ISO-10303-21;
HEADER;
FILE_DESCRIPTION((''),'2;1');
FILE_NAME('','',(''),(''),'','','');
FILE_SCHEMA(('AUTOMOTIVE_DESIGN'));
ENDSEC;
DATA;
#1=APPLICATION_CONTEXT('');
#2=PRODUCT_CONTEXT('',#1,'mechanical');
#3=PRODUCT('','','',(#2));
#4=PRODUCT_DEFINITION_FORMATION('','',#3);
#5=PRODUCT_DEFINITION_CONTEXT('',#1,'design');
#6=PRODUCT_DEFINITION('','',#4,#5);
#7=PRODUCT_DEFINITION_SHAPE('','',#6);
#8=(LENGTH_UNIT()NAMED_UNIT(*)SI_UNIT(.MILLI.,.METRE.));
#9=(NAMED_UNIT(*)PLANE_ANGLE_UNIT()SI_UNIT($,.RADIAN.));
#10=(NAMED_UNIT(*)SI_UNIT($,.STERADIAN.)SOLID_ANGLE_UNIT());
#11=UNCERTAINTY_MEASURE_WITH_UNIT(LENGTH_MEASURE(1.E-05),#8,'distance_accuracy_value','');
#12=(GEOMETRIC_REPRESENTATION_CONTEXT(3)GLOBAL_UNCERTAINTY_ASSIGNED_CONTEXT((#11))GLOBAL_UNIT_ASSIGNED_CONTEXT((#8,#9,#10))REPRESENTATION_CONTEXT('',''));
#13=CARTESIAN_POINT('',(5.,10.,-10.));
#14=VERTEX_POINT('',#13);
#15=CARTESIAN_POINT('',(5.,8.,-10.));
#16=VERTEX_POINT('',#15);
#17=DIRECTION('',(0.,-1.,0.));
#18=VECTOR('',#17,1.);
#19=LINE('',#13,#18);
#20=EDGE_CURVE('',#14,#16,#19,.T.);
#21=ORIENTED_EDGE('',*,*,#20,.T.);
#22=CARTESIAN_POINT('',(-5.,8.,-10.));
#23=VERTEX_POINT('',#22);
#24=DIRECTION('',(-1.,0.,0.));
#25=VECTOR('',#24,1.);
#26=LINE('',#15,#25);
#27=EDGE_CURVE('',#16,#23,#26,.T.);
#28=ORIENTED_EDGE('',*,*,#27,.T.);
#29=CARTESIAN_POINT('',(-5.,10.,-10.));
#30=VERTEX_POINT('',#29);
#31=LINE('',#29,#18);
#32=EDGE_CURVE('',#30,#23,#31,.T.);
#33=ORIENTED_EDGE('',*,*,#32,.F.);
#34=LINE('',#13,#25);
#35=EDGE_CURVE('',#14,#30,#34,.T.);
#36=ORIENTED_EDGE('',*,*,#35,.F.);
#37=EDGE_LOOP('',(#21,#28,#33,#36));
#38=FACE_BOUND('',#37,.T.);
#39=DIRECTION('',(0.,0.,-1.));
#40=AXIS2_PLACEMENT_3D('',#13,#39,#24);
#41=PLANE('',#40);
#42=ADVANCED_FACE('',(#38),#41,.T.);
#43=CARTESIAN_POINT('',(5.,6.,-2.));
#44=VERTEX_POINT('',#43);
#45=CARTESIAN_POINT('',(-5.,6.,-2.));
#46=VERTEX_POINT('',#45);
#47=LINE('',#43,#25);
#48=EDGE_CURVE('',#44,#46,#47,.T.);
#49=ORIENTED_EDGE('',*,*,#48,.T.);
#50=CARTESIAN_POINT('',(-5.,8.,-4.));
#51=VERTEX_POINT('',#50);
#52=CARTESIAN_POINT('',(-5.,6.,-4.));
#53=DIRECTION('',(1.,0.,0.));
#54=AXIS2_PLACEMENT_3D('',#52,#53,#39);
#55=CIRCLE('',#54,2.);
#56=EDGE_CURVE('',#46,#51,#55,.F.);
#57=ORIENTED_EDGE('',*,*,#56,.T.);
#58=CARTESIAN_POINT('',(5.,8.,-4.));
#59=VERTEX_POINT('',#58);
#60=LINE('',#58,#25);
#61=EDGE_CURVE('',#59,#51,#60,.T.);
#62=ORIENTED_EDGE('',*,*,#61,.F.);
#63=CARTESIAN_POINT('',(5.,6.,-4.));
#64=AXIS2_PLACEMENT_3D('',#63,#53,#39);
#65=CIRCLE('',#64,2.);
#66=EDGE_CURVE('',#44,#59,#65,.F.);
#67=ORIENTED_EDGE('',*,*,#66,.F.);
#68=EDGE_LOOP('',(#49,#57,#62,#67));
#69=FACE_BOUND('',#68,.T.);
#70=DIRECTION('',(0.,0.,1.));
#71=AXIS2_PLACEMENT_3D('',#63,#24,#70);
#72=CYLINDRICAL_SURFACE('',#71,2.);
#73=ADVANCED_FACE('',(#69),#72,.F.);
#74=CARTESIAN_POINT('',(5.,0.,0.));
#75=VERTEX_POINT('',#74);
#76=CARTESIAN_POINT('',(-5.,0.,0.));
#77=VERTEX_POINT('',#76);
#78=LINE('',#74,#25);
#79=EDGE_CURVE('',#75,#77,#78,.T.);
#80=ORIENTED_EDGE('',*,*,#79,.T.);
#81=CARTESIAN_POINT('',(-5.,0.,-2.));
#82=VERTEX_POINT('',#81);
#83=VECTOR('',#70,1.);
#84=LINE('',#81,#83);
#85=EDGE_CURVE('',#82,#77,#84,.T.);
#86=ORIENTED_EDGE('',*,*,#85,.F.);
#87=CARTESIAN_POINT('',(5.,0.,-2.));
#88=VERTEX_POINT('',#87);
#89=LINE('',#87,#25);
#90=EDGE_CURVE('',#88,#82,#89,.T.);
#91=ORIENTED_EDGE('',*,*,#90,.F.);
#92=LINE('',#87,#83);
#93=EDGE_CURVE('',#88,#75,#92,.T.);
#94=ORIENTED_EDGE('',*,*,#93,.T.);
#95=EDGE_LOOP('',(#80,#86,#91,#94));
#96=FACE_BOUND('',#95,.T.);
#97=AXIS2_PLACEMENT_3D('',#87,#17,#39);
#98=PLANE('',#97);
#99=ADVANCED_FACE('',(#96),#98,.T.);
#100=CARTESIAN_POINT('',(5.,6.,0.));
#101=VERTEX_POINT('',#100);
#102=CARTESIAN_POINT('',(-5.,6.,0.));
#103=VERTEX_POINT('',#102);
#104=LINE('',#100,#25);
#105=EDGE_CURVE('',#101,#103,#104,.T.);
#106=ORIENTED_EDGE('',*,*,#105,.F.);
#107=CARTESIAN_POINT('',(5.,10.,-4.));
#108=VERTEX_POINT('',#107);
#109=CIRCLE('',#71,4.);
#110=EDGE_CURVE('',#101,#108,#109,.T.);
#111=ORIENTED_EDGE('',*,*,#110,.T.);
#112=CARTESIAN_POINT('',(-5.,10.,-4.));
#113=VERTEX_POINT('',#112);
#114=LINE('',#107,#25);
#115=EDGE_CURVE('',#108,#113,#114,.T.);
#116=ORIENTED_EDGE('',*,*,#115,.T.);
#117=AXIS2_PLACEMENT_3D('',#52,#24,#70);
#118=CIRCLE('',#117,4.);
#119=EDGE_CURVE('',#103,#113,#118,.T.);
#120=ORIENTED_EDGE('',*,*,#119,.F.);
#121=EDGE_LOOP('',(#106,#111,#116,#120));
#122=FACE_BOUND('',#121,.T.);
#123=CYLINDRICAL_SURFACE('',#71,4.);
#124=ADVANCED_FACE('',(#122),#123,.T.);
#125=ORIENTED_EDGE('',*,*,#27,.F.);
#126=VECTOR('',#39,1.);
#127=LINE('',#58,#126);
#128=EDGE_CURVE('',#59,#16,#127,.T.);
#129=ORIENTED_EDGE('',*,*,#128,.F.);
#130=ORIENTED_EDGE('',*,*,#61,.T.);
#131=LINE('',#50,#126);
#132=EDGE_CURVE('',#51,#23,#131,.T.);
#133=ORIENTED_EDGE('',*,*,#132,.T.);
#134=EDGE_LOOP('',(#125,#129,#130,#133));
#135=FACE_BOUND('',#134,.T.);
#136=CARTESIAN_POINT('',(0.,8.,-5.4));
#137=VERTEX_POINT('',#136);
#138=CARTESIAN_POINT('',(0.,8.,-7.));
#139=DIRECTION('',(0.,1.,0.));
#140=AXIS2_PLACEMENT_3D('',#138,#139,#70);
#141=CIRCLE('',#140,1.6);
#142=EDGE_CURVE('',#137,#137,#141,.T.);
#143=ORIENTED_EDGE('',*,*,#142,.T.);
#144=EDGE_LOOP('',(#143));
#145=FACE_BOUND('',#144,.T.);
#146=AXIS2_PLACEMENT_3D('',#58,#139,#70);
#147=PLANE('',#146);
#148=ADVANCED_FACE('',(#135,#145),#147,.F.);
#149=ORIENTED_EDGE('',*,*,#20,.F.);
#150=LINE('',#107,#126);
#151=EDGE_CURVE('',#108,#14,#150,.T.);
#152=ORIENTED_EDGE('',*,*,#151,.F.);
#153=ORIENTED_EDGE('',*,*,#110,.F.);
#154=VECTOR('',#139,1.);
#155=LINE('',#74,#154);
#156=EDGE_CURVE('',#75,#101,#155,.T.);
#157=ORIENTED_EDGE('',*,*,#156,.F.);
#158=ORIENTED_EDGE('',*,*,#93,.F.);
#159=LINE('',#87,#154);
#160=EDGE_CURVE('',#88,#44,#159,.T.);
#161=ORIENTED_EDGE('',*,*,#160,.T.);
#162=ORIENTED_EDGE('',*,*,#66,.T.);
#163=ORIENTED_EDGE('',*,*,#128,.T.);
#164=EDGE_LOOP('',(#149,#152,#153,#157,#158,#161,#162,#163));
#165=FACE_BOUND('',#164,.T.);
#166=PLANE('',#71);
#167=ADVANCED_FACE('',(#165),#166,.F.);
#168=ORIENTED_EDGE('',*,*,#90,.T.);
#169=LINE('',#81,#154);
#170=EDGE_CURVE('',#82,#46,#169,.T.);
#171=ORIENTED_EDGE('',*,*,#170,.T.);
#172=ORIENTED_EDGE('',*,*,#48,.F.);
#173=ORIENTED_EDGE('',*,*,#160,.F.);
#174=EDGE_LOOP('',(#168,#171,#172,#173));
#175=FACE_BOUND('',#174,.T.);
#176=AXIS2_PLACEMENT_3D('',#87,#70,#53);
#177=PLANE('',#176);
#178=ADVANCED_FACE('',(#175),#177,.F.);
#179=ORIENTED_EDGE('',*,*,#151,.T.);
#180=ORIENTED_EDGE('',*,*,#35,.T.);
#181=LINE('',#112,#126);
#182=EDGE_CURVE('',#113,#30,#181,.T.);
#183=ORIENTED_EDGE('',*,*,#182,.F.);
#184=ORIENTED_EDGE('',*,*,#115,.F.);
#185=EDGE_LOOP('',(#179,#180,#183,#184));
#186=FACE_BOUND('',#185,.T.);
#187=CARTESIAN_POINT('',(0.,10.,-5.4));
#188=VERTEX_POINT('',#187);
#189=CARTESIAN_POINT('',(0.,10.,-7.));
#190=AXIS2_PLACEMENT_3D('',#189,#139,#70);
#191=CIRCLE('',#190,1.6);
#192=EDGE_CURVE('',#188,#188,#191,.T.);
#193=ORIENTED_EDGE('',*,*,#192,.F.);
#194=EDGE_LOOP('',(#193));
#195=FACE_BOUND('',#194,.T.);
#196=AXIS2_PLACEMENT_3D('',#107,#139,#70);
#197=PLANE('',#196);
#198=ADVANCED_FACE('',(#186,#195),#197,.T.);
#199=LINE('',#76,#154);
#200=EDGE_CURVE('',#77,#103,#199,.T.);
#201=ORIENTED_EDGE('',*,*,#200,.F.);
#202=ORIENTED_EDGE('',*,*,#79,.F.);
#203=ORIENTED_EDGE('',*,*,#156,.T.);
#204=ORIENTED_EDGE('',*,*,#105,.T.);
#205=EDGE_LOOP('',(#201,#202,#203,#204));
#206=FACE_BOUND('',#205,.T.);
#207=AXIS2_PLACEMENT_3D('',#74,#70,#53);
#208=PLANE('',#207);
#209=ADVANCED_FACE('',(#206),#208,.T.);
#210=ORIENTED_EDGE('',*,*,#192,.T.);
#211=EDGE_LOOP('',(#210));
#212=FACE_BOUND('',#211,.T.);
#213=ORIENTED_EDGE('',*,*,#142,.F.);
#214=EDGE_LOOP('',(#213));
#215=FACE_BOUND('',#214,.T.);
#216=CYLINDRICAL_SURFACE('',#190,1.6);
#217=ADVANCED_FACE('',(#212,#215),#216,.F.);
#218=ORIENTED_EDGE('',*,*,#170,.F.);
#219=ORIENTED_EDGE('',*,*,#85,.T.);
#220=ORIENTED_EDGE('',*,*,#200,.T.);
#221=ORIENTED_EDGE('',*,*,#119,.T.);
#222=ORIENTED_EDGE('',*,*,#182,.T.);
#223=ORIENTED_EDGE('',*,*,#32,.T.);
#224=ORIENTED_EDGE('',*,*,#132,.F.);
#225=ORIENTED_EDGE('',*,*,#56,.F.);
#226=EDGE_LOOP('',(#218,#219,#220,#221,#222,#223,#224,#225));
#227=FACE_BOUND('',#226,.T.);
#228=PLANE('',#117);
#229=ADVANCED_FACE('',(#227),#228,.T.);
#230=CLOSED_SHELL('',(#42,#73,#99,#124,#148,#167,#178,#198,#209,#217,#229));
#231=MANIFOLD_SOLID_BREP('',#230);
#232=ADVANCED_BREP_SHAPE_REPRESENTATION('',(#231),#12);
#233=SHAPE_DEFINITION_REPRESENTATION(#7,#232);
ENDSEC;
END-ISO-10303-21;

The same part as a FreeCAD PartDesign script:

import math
import FreeCAD as App
import Part
import Sketcher

doc = App.newDocument("Part")
body = doc.addObject("PartDesign::Body", "Body")

# Sketch on YZ plane
sketch1 = doc.addObject("Sketcher::SketchObject", "Sketch")
body.addObject(sketch1)
sketch1.AttachmentSupport = (doc.YZ_Plane, [""])
sketch1.MapMode = "FlatFace"
sketch1.addGeometry(Part.LineSegment(App.Vector(6, 0, 0), App.Vector(0, 0, 0)), False)
sketch1.addGeometry(Part.LineSegment(App.Vector(0, 0, 0), App.Vector(0, -2, 0)), False)
sketch1.addGeometry(Part.LineSegment(App.Vector(0, -2, 0), App.Vector(6, -2, 0)), False)
sketch1.addGeometry(Part.ArcOfCircle(Part.Circle(App.Vector(6, -4, 0), App.Vector(0, 0, 1), 2), math.radians(0), math.radians(90)), False)
sketch1.addGeometry(Part.LineSegment(App.Vector(8, -4, 0), App.Vector(8, -10, 0)), False)
sketch1.addGeometry(Part.LineSegment(App.Vector(8, -10, 0), App.Vector(10, -10, 0)), False)
sketch1.addGeometry(Part.LineSegment(App.Vector(10, -10, 0), App.Vector(10, -4, 0)), False)
sketch1.addGeometry(Part.ArcOfCircle(Part.Circle(App.Vector(6, -4, 0), App.Vector(0, 0, 1), 4), math.radians(0), math.radians(90)), False)
sketch1.addConstraint(Sketcher.Constraint("Coincident", 0, 2, 1, 1))
sketch1.addConstraint(Sketcher.Constraint("Coincident", 1, 2, 2, 1))
sketch1.addConstraint(Sketcher.Constraint("Tangent", 2, 2, 3, 2))
sketch1.addConstraint(Sketcher.Constraint("Tangent", 3, 1, 4, 1))
sketch1.addConstraint(Sketcher.Constraint("Coincident", 4, 2, 5, 1))
sketch1.addConstraint(Sketcher.Constraint("Coincident", 5, 2, 6, 1))
sketch1.addConstraint(Sketcher.Constraint("Tangent", 6, 2, 7, 1))
sketch1.addConstraint(Sketcher.Constraint("Tangent", 7, 2, 0, 1))
sketch1.addConstraint(Sketcher.Constraint("Horizontal", 0))
sketch1.addConstraint(Sketcher.Constraint("Vertical", 1))
sketch1.addConstraint(Sketcher.Constraint("Horizontal", 2))
sketch1.addConstraint(Sketcher.Constraint("Vertical", 4))
sketch1.addConstraint(Sketcher.Constraint("Horizontal", 5))
sketch1.addConstraint(Sketcher.Constraint("Vertical", 6))
sketch1.addConstraint(Sketcher.Constraint("Coincident", 0, 2, -1, 1))
sketch1.addConstraint(Sketcher.Constraint("Coincident", 7, 3, 3, 3))
sketch1.addConstraint(Sketcher.Constraint("Equal", 2, 4))
sketch1.addConstraint(Sketcher.Constraint("Radius", 3, 2.0))
sketch1.addConstraint(Sketcher.Constraint("Radius", 7, 4.0))
sketch1.addConstraint(Sketcher.Constraint("DistanceX", 0, 2, 0, 1, 6.0))
pad1 = doc.addObject("PartDesign::Pad", "Pad")
body.addObject(pad1)
pad1.Profile = sketch1
pad1.Length = 10
pad1.Midplane = True

# Sketch on XZ plane
sketch2 = doc.addObject("Sketcher::SketchObject", "Sketch001")
body.addObject(sketch2)
sketch2.AttachmentSupport = (doc.XZ_Plane, [""])
sketch2.MapMode = "FlatFace"
sketch2.AttachmentOffset = App.Placement(App.Vector(0, 0, -10), App.Rotation())
sketch2.addGeometry(Part.Circle(App.Vector(0, -7, 0), App.Vector(0, 0, 1), 1.6), False)
sketch2.addConstraint(Sketcher.Constraint("PointOnObject", 0, 3, -2))
sketch2.addConstraint(Sketcher.Constraint("Diameter", 0, 3.2))
sketch2.addConstraint(Sketcher.Constraint("DistanceY", 0, 3, -1, 1, 7.0))
doc.recompute()
hole = doc.addObject("PartDesign::Hole", "Hole")
body.addObject(hole)
hole.Profile = sketch2
hole.ThreadType = "None"
hole.Diameter = 3.2
hole.DepthType = "ThroughAll"
hole.Reversed = True

doc.recompute()
